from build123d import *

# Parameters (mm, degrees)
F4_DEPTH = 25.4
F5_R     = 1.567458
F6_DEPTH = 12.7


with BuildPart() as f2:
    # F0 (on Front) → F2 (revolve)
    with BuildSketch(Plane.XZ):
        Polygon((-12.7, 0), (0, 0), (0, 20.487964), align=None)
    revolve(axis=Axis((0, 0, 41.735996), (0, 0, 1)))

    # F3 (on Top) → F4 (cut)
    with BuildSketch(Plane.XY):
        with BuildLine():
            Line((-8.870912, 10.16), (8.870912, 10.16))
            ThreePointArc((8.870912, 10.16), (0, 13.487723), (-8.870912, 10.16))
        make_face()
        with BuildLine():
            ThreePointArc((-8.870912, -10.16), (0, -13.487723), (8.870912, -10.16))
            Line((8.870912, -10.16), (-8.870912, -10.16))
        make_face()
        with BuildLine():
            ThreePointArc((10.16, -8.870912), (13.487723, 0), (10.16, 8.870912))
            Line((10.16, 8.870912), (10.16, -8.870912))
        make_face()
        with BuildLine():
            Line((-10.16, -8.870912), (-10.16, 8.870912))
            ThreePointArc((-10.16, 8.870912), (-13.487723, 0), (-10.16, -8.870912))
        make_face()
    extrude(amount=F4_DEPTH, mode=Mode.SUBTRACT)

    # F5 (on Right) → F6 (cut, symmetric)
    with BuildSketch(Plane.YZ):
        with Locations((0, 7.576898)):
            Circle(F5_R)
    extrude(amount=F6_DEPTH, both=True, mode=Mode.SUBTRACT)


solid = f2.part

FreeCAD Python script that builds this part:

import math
import FreeCAD as App
import Part
import Sketcher

V = App.Vector
Q = App.Units.Quantity


def add_polygon(sketch, points):
    """Adds a closed chain of lines whose ends are joined by coincident constraints."""
    first, n = sketch.GeometryCount, len(points)
    for a, b in zip(points, points[1:] + points[:1]):
        sketch.addGeometry(Part.LineSegment(App.Vector(*a, 0), App.Vector(*b, 0)), False)
    for i in range(n):
        sketch.addConstraint(Sketcher.Constraint("Coincident", first + i, 2, first + (i + 1) % n, 1))

doc = App.newDocument("Part")
body = doc.addObject("PartDesign::Body", "Body")

sketch1 = doc.addObject("Sketcher::SketchObject", "Sketch")
body.addObject(sketch1)
sketch1.AttachmentSupport = (doc.XZ_Plane, [""])
sketch1.MapMode = "FlatFace"
add_polygon(sketch1, [(-12.7, 0), (0, 0), (0, 20.487964)])
sketch1.addConstraint(Sketcher.Constraint("Horizontal", 0))
sketch1.addConstraint(Sketcher.Constraint("Vertical", 1))
sketch1.addConstraint(Sketcher.Constraint("Coincident", 0, 2, -1, 1))
sketch1.addConstraint(Sketcher.Constraint("DistanceX", 0, 1, 0, 2, Q("0.5 in")))
sketch1.addConstraint(Sketcher.Constraint("Distance", 2, 24.10491))
revolution = doc.addObject("PartDesign::Revolution", "Revolution")
body.addObject(revolution)
revolution.Profile = sketch1
revolution.ReferenceAxis = (sketch1, ["V_Axis"])
revolution.Angle = 360

sketch2 = doc.addObject("Sketcher::SketchObject", "Sketch001")
body.addObject(sketch2)
sketch2.AttachmentSupport = (doc.XY_Plane, [""])
sketch2.MapMode = "FlatFace"
sketch2.addGeometry(Part.LineSegment(V(-8.870912, 10.16, 0), V(8.870912, 10.16, 0)), False)
sketch2.addGeometry(Part.ArcOfCircle(Part.Circle(V(0, -0.000001, 0), V(0, 0, 1), 13.487724), math.radians(48.875101), math.radians(131.124899)), False)
sketch2.addGeometry(Part.ArcOfCircle(Part.Circle(V(0, 0.000001, 0), V(0, 0, 1), 13.487724), math.radians(-131.124899), math.radians(-48.875101)), False)
sketch2.addGeometry(Part.LineSegment(V(8.870912, -10.16, 0), V(-8.870912, -10.16, 0)), False)
sketch2.addGeometry(Part.ArcOfCircle(Part.Circle(V(-0.000001, 0, 0), V(0, 0, 1), 13.487724), math.radians(-41.124899), math.radians(41.124899)), False)
sketch2.addGeometry(Part.LineSegment(V(10.16, 8.870912, 0), V(10.16, -8.870912, 0)), False)
sketch2.addGeometry(Part.LineSegment(V(-10.16, -8.870912, 0), V(-10.16, 8.870912, 0)), False)
sketch2.addGeometry(Part.ArcOfCircle(Part.Circle(V(0.000001, 0, 0), V(0, 0, 1), 13.487724), math.radians(138.875101), math.radians(221.124899)), False)
sketch2.addConstraint(Sketcher.Constraint("Coincident", 0, 1, 1, 2))
sketch2.addConstraint(Sketcher.Constraint("Coincident", 1, 1, 0, 2))
sketch2.addConstraint(Sketcher.Constraint("Coincident", 2, 1, 3, 2))
sketch2.addConstraint(Sketcher.Constraint("Coincident", 3, 1, 2, 2))
sketch2.addConstraint(Sketcher.Constraint("Coincident", 4, 1, 5, 2))
sketch2.addConstraint(Sketcher.Constraint("Coincident", 5, 1, 4, 2))
sketch2.addConstraint(Sketcher.Constraint("Coincident", 6, 1, 7, 2))
sketch2.addConstraint(Sketcher.Constraint("Coincident", 7, 1, 6, 2))
sketch2.addConstraint(Sketcher.Constraint("Horizontal", 0))
sketch2.addConstraint(Sketcher.Constraint("Horizontal", 3))
sketch2.addConstraint(Sketcher.Constraint("Vertical", 5))
sketch2.addConstraint(Sketcher.Constraint("Vertical", 6))
sketch2.addConstraint(Sketcher.Constraint("Coincident", 1, 3, -1, 1))
sketch2.addConstraint(Sketcher.Constraint("Coincident", 2, 3, -1, 1))
sketch2.addConstraint(Sketcher.Constraint("Coincident", 4, 3, -1, 1))
sketch2.addConstraint(Sketcher.Constraint("Coincident", 7, 3, -1, 1))
sketch2.addConstraint(Sketcher.Constraint("Equal", 1, 2))
sketch2.addConstraint(Sketcher.Constraint("Equal", 2, 4))
sketch2.addConstraint(Sketcher.Constraint("Equal", 4, 7))
sketch2.addConstraint(Sketcher.Constraint("Horizontal", 4, 1, 6, 1))
sketch2.addConstraint(Sketcher.Constraint("Vertical", 0, 1, 2, 1))
sketch2.addConstraint(Sketcher.Constraint("Equal", 3, 5))
sketch2.addConstraint(Sketcher.Constraint("DistanceY", -1, 1, 0, 1, Q("0.4 in")))
sketch2.addConstraint(Sketcher.Constraint("Radius", 1, 13.487724))
pocket1 = doc.addObject("PartDesign::Pocket", "Pocket")
body.addObject(pocket1)
pocket1.Profile = sketch2
pocket1.Length = Q("1 in")
pocket1.Reversed = True

sketch3 = doc.addObject("Sketcher::SketchObject", "Sketch002")
body.addObject(sketch3)
sketch3.AttachmentSupport = (doc.YZ_Plane, [""])
sketch3.MapMode = "FlatFace"
sketch3.addGeometry(Part.Circle(V(0, 7.576898, 0), V(0, 0, 1), 1.567458), False)
sketch3.addConstraint(Sketcher.Constraint("PointOnObject", 0, 3, -2))
sketch3.addConstraint(Sketcher.Constraint("Diameter", 0, 3.134916))
sketch3.addConstraint(Sketcher.Constraint("DistanceY", -1, 1, 0, 3, 7.576898))
pocket2 = doc.addObject("PartDesign::Pocket", "Pocket001")
body.addObject(pocket2)
pocket2.Profile = sketch3
pocket2.Length = Q("1 in")
pocket2.Midplane = True

doc.recompute()
